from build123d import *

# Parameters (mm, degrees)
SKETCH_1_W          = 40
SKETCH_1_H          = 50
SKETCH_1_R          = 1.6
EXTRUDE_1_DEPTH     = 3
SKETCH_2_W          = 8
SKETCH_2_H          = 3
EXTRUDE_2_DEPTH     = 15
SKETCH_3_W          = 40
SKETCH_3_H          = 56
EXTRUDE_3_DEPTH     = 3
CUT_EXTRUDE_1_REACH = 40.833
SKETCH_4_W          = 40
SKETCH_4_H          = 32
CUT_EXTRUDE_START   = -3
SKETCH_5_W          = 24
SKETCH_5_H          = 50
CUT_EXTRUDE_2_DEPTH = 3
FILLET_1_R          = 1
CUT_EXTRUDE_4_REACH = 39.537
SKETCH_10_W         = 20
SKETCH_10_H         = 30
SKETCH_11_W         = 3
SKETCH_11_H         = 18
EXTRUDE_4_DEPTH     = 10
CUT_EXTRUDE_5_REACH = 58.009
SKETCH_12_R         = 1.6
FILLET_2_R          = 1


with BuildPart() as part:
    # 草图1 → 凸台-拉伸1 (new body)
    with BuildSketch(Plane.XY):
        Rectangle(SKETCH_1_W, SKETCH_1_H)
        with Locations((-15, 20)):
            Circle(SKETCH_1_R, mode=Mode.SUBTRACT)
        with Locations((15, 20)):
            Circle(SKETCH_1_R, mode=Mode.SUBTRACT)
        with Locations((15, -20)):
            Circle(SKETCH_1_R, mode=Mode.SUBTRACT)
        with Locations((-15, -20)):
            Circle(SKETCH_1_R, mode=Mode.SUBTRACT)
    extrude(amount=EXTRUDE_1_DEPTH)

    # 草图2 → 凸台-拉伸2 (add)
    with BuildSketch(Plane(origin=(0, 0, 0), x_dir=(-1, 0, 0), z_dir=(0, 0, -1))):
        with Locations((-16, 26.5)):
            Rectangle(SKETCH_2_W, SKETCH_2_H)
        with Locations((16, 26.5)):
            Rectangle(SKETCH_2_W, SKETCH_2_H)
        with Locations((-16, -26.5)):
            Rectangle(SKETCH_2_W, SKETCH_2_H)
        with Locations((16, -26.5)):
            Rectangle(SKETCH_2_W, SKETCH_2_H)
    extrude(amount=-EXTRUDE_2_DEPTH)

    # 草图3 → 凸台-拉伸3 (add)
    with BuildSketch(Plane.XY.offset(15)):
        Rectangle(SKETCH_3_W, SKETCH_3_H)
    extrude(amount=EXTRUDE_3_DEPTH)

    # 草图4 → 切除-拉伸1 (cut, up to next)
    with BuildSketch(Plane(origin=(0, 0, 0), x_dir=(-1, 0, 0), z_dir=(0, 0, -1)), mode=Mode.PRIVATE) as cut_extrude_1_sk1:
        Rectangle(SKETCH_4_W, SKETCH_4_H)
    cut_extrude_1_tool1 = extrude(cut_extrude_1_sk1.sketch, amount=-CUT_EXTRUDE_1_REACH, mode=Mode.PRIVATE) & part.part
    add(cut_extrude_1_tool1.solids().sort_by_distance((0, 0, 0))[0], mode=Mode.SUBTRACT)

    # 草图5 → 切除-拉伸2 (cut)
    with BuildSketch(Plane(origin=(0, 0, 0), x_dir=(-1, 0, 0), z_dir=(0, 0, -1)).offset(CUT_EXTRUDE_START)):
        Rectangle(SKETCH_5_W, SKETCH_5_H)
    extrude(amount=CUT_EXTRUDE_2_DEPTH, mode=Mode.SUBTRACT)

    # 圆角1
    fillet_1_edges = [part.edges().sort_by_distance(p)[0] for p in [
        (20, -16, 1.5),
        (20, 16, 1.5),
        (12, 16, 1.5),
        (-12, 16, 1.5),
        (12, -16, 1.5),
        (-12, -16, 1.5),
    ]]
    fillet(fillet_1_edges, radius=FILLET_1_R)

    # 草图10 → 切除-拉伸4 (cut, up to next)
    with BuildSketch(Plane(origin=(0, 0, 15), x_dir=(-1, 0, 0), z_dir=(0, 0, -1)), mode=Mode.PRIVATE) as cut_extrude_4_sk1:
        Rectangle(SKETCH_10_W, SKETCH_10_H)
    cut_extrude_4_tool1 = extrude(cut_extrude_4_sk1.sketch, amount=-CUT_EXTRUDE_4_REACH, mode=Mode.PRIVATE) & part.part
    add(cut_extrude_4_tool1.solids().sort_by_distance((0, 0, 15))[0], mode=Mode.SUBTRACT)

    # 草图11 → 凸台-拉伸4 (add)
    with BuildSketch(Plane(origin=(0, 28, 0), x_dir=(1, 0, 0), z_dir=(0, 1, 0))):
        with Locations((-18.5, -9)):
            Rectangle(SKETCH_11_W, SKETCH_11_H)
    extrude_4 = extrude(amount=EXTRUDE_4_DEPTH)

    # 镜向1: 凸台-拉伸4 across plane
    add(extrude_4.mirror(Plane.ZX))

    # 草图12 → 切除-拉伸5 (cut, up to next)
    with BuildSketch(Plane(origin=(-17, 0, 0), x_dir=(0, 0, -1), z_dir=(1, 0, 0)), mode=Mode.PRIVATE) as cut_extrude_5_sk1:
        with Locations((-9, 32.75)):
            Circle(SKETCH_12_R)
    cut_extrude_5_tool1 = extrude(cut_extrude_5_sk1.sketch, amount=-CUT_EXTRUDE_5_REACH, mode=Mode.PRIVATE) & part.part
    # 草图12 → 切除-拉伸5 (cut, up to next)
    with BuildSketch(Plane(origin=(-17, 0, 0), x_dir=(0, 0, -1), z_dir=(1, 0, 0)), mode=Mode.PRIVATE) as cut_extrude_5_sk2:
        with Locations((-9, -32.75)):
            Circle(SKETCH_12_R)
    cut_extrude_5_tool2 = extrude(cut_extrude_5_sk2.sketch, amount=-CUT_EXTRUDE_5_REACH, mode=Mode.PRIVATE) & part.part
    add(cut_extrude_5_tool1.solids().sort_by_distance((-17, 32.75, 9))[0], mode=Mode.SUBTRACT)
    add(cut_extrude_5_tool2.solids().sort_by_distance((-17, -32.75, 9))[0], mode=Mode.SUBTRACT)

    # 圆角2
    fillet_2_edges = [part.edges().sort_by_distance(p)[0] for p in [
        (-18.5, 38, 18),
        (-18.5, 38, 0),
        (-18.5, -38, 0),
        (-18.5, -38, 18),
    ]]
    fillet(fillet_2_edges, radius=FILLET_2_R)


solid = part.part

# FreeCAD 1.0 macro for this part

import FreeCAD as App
import Part
import Sketcher


def edges_at(feature, points):
    """Names of the edges that pass closest to the given points."""
    edges = feature.Shape.Edges
    near = lambda p: min(range(len(edges)), key=lambda i: edges[i].distToShape(Part.Vertex(*p))[0])
    return sorted({f"Edge{near(p) + 1}" for p in points})


def add_polygon(sketch, points):
    """Adds a closed chain of lines whose ends are joined by coincident constraints."""
    first, n = sketch.GeometryCount, len(points)
    for a, b in zip(points, points[1:] + points[:1]):
        sketch.addGeometry(Part.LineSegment(App.Vector(*a, 0), App.Vector(*b, 0)), False)
    for i in range(n):
        sketch.addConstraint(Sketcher.Constraint("Coincident", first + i, 2, first + (i + 1) % n, 1))

doc = App.newDocument("Part")
body = doc.addObject("PartDesign::Body", "Body")

# Sketch on XY plane
sketch1 = body.newObject("Sketcher::SketchObject", "Sketch")
sketch1.AttachmentSupport = (doc.getObject("XY_Plane"), [""])
sketch1.MapMode = "FlatFace"
add_polygon(sketch1, [(-20, 25), (-20, -25), (20, -25), (20, 25)])  # lines 0-3
sketch1.addGeometry(Part.Circle(App.Vector(-15, -20, 0), App.Vector(0, 0, 1), 1.6), False)  # 4
sketch1.addGeometry(Part.Circle(App.Vector(15, -20, 0), App.Vector(0, 0, 1), 1.6), False)  # 5
sketch1.addGeometry(Part.Circle(App.Vector(-15, 20, 0), App.Vector(0, 0, 1), 1.6), False)  # 6
sketch1.addGeometry(Part.Circle(App.Vector(15, 20, 0), App.Vector(0, 0, 1), 1.6), False)  # 7
sketch1.addConstraint([
    Sketcher.Constraint("Vertical", 0),
    Sketcher.Constraint("Horizontal", 1),
    Sketcher.Constraint("Vertical", 2),
    Sketcher.Constraint("Horizontal", 3),
    Sketcher.Constraint("Equal", 4, 5),
    Sketcher.Constraint("Equal", 5, 6),
    Sketcher.Constraint("Equal", 6, 7),
    Sketcher.Constraint("Symmetric", 5, 3, 6, 3, -1, 1),
    Sketcher.Constraint("Symmetric", 4, 3, 7, 3, -1, 1),
    Sketcher.Constraint("Symmetric", 0, 2, 2, 2, -1, 1),
    Sketcher.Constraint("Symmetric", 4, 3, 5, 3, -2),
    Sketcher.Constraint("Diameter", 4, 3.2),
    Sketcher.Constraint("DistanceX", 1, 1, 1, 2, 40.0),
    Sketcher.Constraint("DistanceY", 0, 2, 0, 1, 50.0),
    Sketcher.Constraint("DistanceX", 4, 3, -1, 1, 15.0),
    Sketcher.Constraint("DistanceY", 4, 3, -1, 1, 20.0),
])
pad1 = body.newObject("PartDesign::Pad", "Pad")
pad1.Profile = sketch1
pad1.Length = 3

# Sketch on XY plane
sketch2 = body.newObject("Sketcher::SketchObject", "Sketch001")
sketch2.AttachmentSupport = (doc.getObject("XY_Plane"), [""])
sketch2.MapMode = "FlatFace"
add_polygon(sketch2, [(20, 28), (20, 25), (12, 25), (12, 28)])  # lines 0-3
add_polygon(sketch2, [(-12, 28), (-12, 25), (-20, 25), (-20, 28)])  # lines 4-7
add_polygon(sketch2, [(20, -25), (20, -28), (12, -28), (12, -25)])  # lines 8-11
add_polygon(sketch2, [(-12, -25), (-12, -28), (-20, -28), (-20, -25)])  # lines 12-15
sketch2.addConstraint([
    Sketcher.Constraint("Vertical", 0),
    Sketcher.Constraint("Horizontal", 1),
    Sketcher.Constraint("Vertical", 2),
    Sketcher.Constraint("Horizontal", 3),
    Sketcher.Constraint("Vertical", 4),
    Sketcher.Constraint("Horizontal", 5),
    Sketcher.Constraint("Vertical", 6),
    Sketcher.Constraint("Horizontal", 7),
    Sketcher.Constraint("Vertical", 8),
    Sketcher.Constraint("Horizontal", 9),
    Sketcher.Constraint("Vertical", 10),
    Sketcher.Constraint("Horizontal", 11),
    Sketcher.Constraint("Vertical", 12),
    Sketcher.Constraint("Horizontal", 13),
    Sketcher.Constraint("Vertical", 14),
    Sketcher.Constraint("Horizontal", 15),
    Sketcher.Constraint("Symmetric", 6, 2, 8, 2, -1, 1),
    Sketcher.Constraint("Symmetric", 4, 2, 10, 2, -1, 1),
    Sketcher.Constraint("Symmetric", 2, 2, 12, 2, -1, 1),
    Sketcher.Constraint("Symmetric", 0, 2, 14, 2, -1, 1),
    Sketcher.Constraint("Symmetric", 1, 2, 4, 2, -2),
    Sketcher.Constraint("Symmetric", 3, 2, 6, 2, -2),
    Sketcher.Constraint("DistanceX", 1, 2, 1, 1, 8.0),
    Sketcher.Constraint("DistanceY", 0, 2, 0, 1, 3.0),
    Sketcher.Constraint("DistanceX", -1, 1, 0, 2, 20.0),
    Sketcher.Constraint("DistanceY", -1, 1, 0, 2, 25.0),
])
pad2 = body.newObject("PartDesign::Pad", "Pad001")
pad2.Profile = sketch2
pad2.Length = 15

# Sketch on XY plane
sketch3 = body.newObject("Sketcher::SketchObject", "Sketch002")
sketch3.AttachmentSupport = (doc.getObject("XY_Plane"), [""])
sketch3.MapMode = "FlatFace"
sketch3.AttachmentOffset = App.Placement(App.Vector(0, 0, 15), App.Rotation())
add_polygon(sketch3, [(-20, 28), (-20, -28), (20, -28), (20, 28)])  # lines 0-3
sketch3.addConstraint([
    Sketcher.Constraint("Vertical", 0),
    Sketcher.Constraint("Horizontal", 1),
    Sketcher.Constraint("Vertical", 2),
    Sketcher.Constraint("Horizontal", 3),
    Sketcher.Constraint("Symmetric", 0, 2, 2, 2, -1, 1),
    Sketcher.Constraint("DistanceX", 1, 1, 1, 2, 40.0),
    Sketcher.Constraint("DistanceY", 0, 2, 0, 1, 56.0),
])
pad3 = body.newObject("PartDesign::Pad", "Pad002")
pad3.Profile = sketch3
pad3.Length = 3

# Sketch on XY plane
sketch4 = body.newObject("Sketcher::SketchObject", "Sketch003")
sketch4.AttachmentSupport = (doc.getObject("XY_Plane"), [""])
sketch4.MapMode = "FlatFace"
add_polygon(sketch4, [(20, 16), (20, -16), (-20, -16), (-20, 16)])  # lines 0-3
sketch4.addConstraint([
    Sketcher.Constraint("Vertical", 0),
    Sketcher.Constraint("Horizontal", 1),
    Sketcher.Constraint("Vertical", 2),
    Sketcher.Constraint("Horizontal", 3),
    Sketcher.Constraint("Symmetric", 0, 2, 2, 2, -1, 1),
    Sketcher.Constraint("DistanceX", 1, 2, 1, 1, 40.0),
    Sketcher.Constraint("DistanceY", 0, 2, 0, 1, 32.0),
])
pocket1 = body.newObject("PartDesign::Pocket", "Pocket")
pocket1.Profile = sketch4
pocket1.Type = "UpToFirst"
pocket1.Reversed = True

# Sketch on XY plane
sketch5 = body.newObject("Sketcher::SketchObject", "Sketch004")
sketch5.AttachmentSupport = (doc.getObject("XY_Plane"), [""])
sketch5.MapMode = "FlatFace"
sketch5.AttachmentOffset = App.Placement(App.Vector(0, 0, 3), App.Rotation())
add_polygon(sketch5, [(12, 25), (12, -25), (-12, -25), (-12, 25)])  # lines 0-3
sketch5.addConstraint([
    Sketcher.Constraint("Vertical", 0),
    Sketcher.Constraint("Horizontal", 1),
    Sketcher.Constraint("Vertical", 2),
    Sketcher.Constraint("Horizontal", 3),
    Sketcher.Constraint("Symmetric", 0, 2, 2, 2, -1, 1),
    Sketcher.Constraint("DistanceX", 1, 2, 1, 1, 24.0),
    Sketcher.Constraint("DistanceY", 0, 2, 0, 1, 50.0),
])
pocket2 = body.newObject("PartDesign::Pocket", "Pocket001")
pocket2.Profile = sketch5
pocket2.Length = 3
doc.recompute()

fillet = body.newObject("PartDesign::Fillet", "Fillet")
fillet.Base = (pocket2, edges_at(pocket2, [
    (20, -16, 1.5),
    (20, 16, 1.5),
    (12, 16, 1.5),
    (-12, 16, 1.5),
    (12, -16, 1.5),
    (-12, -16, 1.5),
]))
fillet.Radius = 1

# Sketch on XY plane
sketch6 = body.newObject("Sketcher::SketchObject", "Sketch005")
sketch6.AttachmentSupport = (doc.getObject("XY_Plane"), [""])
sketch6.MapMode = "FlatFace"
sketch6.AttachmentOffset = App.Placement(App.Vector(0, 0, 15), App.Rotation())
add_polygon(sketch6, [(10, 15), (10, -15), (-10, -15), (-10, 15)])  # lines 0-3
sketch6.addConstraint([
    Sketcher.Constraint("Vertical", 0),
    Sketcher.Constraint("Horizontal", 1),
    Sketcher.Constraint("Vertical", 2),
    Sketcher.Constraint("Horizontal", 3),
    Sketcher.Constraint("Symmetric", 0, 2, 2, 2, -1, 1),
    Sketcher.Constraint("DistanceX", 1, 2, 1, 1, 20.0),
    Sketcher.Constraint("DistanceY", 0, 2, 0, 1, 30.0),
])
pocket3 = body.newObject("PartDesign::Pocket", "Pocket002")
pocket3.Profile = sketch6
pocket3.Type = "UpToFirst"
pocket3.Reversed = True

# Sketch on XZ plane
sketch7 = body.newObject("Sketcher::SketchObject", "Sketch006")
sketch7.AttachmentSupport = (doc.getObject("XZ_Plane"), [""])
sketch7.MapMode = "FlatFace"
sketch7.AttachmentOffset = App.Placement(App.Vector(0, 0, -28), App.Rotation())
add_polygon(sketch7, [(-20, 0), (-20, 18), (-17, 18), (-17, 0)])  # lines 0-3
sketch7.addConstraint([
    Sketcher.Constraint("Vertical", 0),
    Sketcher.Constraint("Horizontal", 1),
    Sketcher.Constraint("Vertical", 2),
    Sketcher.Constraint("Horizontal", 3),
    Sketcher.Constraint("PointOnObject", 2, 2, -1),
    Sketcher.Constraint("DistanceX", 1, 1, 1, 2, 3.0),
    Sketcher.Constraint("DistanceY", 0, 1, 0, 2, 18.0),
    Sketcher.Constraint("DistanceX", 0, 2, -1, 1, 20.0),
])
pad4 = body.newObject("PartDesign::Pad", "Pad003")
pad4.Profile = sketch7
pad4.Length = 10
pad4.Reversed = True
doc.recompute()

mirrored = body.newObject("PartDesign::Mirrored", "Mirrored")
mirrored.Originals = [pad4]
mirrored.MirrorPlane = (doc.getObject("XZ_Plane"), [""])
body.Tip = mirrored

# Sketch on YZ plane
sketch8 = body.newObject("Sketcher::SketchObject", "Sketch007")
sketch8.AttachmentSupport = (doc.getObject("YZ_Plane"), [""])
sketch8.MapMode = "FlatFace"
sketch8.AttachmentOffset = App.Placement(App.Vector(0, 0, -17), App.Rotation())
sketch8.addGeometry(Part.Circle(App.Vector(32.8, 9, 0), App.Vector(0, 0, 1), 1.6), False)
sketch8.addConstraint([
    Sketcher.Constraint("Diameter", 0, 3.2),
    Sketcher.Constraint("DistanceY", -1, 1, 0, 3, 9.0),
    Sketcher.Constraint("DistanceX", -1, 1, 0, 3, 32.75),
])
pocket4 = body.newObject("PartDesign::Pocket", "Pocket003")
pocket4.Profile = sketch8
pocket4.Type = "UpToFirst"

# Sketch on YZ plane
sketch9 = body.newObject("Sketcher::SketchObject", "Sketch008")
sketch9.AttachmentSupport = (doc.getObject("YZ_Plane"), [""])
sketch9.MapMode = "FlatFace"
sketch9.AttachmentOffset = App.Placement(App.Vector(0, 0, -17), App.Rotation())
sketch9.addGeometry(Part.Circle(App.Vector(-32.8, 9, 0), App.Vector(0, 0, 1), 1.6), False)
sketch9.addConstraint([
    Sketcher.Constraint("Diameter", 0, 3.2),
    Sketcher.Constraint("DistanceY", -1, 1, 0, 3, 9.0),
    Sketcher.Constraint("DistanceX", 0, 3, -1, 1, 32.75),
])
pocket5 = body.newObject("PartDesign::Pocket", "Pocket004")
pocket5.Profile = sketch9
pocket5.Type = "UpToFirst"
doc.recompute()

fillet2 = body.newObject("PartDesign::Fillet", "Fillet001")
fillet2.Base = (pocket5, edges_at(pocket5, [
    (-18.5, 38, 18),
    (-18.5, 38, 0),
    (-18.5, -38, 0),
    (-18.5, -38, 18),
]))
fillet2.Radius = 1

doc.recompute()
